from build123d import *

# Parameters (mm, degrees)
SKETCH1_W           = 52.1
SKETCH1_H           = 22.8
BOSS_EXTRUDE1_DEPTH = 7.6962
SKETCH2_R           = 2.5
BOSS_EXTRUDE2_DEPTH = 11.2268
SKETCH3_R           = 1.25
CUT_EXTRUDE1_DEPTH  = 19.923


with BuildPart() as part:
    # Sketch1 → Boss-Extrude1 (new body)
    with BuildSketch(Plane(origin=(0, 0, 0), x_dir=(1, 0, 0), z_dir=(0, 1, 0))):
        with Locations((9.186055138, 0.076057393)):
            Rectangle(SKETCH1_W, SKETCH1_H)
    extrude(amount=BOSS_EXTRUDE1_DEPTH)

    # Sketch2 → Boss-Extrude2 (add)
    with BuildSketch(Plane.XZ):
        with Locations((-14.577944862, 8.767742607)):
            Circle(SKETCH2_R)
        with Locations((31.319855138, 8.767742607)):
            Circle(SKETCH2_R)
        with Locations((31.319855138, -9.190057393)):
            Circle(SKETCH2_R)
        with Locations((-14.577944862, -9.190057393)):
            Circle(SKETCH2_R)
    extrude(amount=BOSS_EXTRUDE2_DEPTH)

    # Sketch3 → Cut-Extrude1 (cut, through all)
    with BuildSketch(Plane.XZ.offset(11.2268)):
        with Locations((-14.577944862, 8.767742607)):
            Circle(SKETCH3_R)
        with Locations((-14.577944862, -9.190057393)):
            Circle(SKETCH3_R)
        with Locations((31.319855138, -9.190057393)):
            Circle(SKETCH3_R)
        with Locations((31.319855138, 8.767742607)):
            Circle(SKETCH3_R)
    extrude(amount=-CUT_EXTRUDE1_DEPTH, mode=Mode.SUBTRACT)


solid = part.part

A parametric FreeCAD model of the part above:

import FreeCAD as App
import Part
import Sketcher
from FreeCAD import Vector
Q = App.Units.Quantity


def add_polygon(sketch, points):
    """Adds a closed chain of lines whose ends are joined by coincident constraints."""
    first, n = sketch.GeometryCount, len(points)
    for a, b in zip(points, points[1:] + points[:1]):
        sketch.addGeometry(Part.LineSegment(App.Vector(*a, 0), App.Vector(*b, 0)), False)
    for i in range(n):
        sketch.addConstraint(Sketcher.Constraint("Coincident", first + i, 2, first + (i + 1) % n, 1))

doc = App.newDocument("Part")
body = doc.addObject("PartDesign::Body", "Body")

# Sketch on XZ plane
sketch1 = doc.addObject("Sketcher::SketchObject", "Sketch")
body.addObject(sketch1)
sketch1.AttachmentSupport = (doc.XZ_Plane, [""])
sketch1.MapMode = "FlatFace"
add_polygon(sketch1, [(-17, -11), (-17, 11), (35, 11), (35, -11)])  # lines 0-3
sketch1.addConstraint([
    Sketcher.Constraint("Vertical", 0),
    Sketcher.Constraint("Horizontal", 1),
    Sketcher.Constraint("Vertical", 2),
    Sketcher.Constraint("Horizontal", 3),
    Sketcher.Constraint("DistanceX", 1, 1, 1, 2, Q("52.1 mm")),
    Sketcher.Constraint("DistanceY", 0, 1, 0, 2, Q("22.8 mm")),
    Sketcher.Constraint("DistanceX", 0, 2, -1, 1, Q("16.863945 mm")),
    Sketcher.Constraint("DistanceY", -1, 1, 0, 2, Q("11.323943 mm")),
])
pad1 = doc.addObject("PartDesign::Pad", "Pad")
body.addObject(pad1)
pad1.Profile = sketch1
pad1.Length = 7.6962
pad1.Reversed = True

# Sketch on XZ plane
sketch2 = doc.addObject("Sketcher::SketchObject", "Sketch001")
body.addObject(sketch2)
sketch2.AttachmentSupport = (doc.XZ_Plane, [""])
sketch2.MapMode = "FlatFace"
sketch2.addGeometry([
    Part.Circle(Vector(-14.6, 8.8, 0), Vector(0, 0, 1), 2.5),
    Part.Circle(Vector(31.3, 8.8, 0), Vector(0, 0, 1), 2.5),
    Part.Circle(Vector(31.3, -9.2, 0), Vector(0, 0, 1), 2.5),
    Part.Circle(Vector(-14.6, -9.2, 0), Vector(0, 0, 1), 2.5),
], False)
sketch2.addConstraint([
    Sketcher.Constraint("Equal", 0, 1),
    Sketcher.Constraint("Equal", 1, 2),
    Sketcher.Constraint("Equal", 2, 3),
    Sketcher.Constraint("Horizontal", 0, 3, 1, 3),
    Sketcher.Constraint("Horizontal", 2, 3, 3, 3),
    Sketcher.Constraint("Vertical", 1, 3, 2, 3),
    Sketcher.Constraint("Vertical", 0, 3, 3, 3),
    Sketcher.Constraint("Diameter", 0, Q("5 mm")),
    Sketcher.Constraint("DistanceX", 0, 3, 1, 3, Q("45.8978 mm")),
    Sketcher.Constraint("DistanceY", 2, 3, 1, 3, Q("17.9578 mm")),
    Sketcher.Constraint("DistanceX", 0, 3, -1, 1, Q("14.577945 mm")),
    Sketcher.Constraint("DistanceY", -1, 1, 0, 3, Q("8.767743 mm")),
])
pad2 = doc.addObject("PartDesign::Pad", "Pad001")
body.addObject(pad2)
pad2.Profile = sketch2
pad2.Length = 11.2268

# Sketch on XZ plane
sketch3 = doc.addObject("Sketcher::SketchObject", "Sketch002")
body.addObject(sketch3)
sketch3.AttachmentSupport = (doc.XZ_Plane, [""])
sketch3.MapMode = "FlatFace"
sketch3.AttachmentOffset = App.Placement(Vector(0, 0, 11.2268), App.Rotation())
sketch3.addGeometry([
    Part.Circle(Vector(-14.6, 8.8, 0), Vector(0, 0, 1), 1.2),
    Part.Circle(Vector(-14.6, -9.2, 0), Vector(0, 0, 1), 1.2),
    Part.Circle(Vector(31.3, -9.2, 0), Vector(0, 0, 1), 1.2),
    Part.Circle(Vector(31.3, 8.8, 0), Vector(0, 0, 1), 1.2),
], False)
sketch3.addConstraint([
    Sketcher.Constraint("Equal", 0, 1),
    Sketcher.Constraint("Equal", 1, 2),
    Sketcher.Constraint("Equal", 2, 3),
    Sketcher.Constraint("Horizontal", 1, 3, 2, 3),
    Sketcher.Constraint("Horizontal", 0, 3, 3, 3),
    Sketcher.Constraint("Vertical", 0, 3, 1, 3),
    Sketcher.Constraint("Vertical", 2, 3, 3, 3),
    Sketcher.Constraint("Diameter", 0, Q("2.5 mm")),
    Sketcher.Constraint("DistanceY", 1, 3, 0, 3, Q("17.9578 mm")),
    Sketcher.Constraint("DistanceX", 1, 3, 2, 3, Q("45.8978 mm")),
    Sketcher.Constraint("DistanceX", 0, 3, -1, 1, Q("14.577945 mm")),
    Sketcher.Constraint("DistanceY", -1, 1, 0, 3, Q("8.767743 mm")),
])
pocket1 = doc.addObject("PartDesign::Pocket", "Pocket")
body.addObject(pocket1)
pocket1.Profile = sketch3
pocket1.Type = "ThroughAll"

doc.recompute()
